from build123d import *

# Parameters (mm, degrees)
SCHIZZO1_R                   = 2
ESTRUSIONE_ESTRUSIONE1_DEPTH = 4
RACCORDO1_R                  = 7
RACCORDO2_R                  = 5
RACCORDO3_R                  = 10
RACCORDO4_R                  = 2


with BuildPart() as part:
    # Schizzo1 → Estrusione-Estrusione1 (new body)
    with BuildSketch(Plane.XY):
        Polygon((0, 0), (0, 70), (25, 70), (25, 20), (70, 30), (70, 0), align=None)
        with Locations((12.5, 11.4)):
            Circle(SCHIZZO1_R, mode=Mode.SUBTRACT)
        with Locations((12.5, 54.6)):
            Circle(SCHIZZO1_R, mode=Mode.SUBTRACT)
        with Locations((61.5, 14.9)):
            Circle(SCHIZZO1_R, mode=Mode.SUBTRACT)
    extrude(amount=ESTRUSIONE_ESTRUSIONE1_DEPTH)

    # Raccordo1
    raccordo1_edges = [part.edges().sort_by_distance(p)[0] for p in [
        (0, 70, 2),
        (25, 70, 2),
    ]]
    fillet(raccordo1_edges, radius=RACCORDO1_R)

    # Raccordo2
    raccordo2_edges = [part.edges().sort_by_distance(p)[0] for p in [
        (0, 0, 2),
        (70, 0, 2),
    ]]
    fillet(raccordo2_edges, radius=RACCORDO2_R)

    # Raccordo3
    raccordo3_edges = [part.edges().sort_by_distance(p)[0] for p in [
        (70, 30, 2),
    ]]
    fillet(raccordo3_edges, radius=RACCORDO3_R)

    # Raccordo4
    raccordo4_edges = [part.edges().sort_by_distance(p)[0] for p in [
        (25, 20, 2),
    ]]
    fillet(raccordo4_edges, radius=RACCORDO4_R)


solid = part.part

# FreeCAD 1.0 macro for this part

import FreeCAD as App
import Part
import Sketcher


def edges_at(feature, points):
    """Names of the edges that pass closest to the given points."""
    edges = feature.Shape.Edges
    near = lambda p: min(range(len(edges)), key=lambda i: edges[i].distToShape(Part.Vertex(*p))[0])
    return sorted({f"Edge{near(p) + 1}" for p in points})


def add_polygon(sketch, points):
    """Adds a closed chain of lines whose ends are joined by coincident constraints."""
    first, n = sketch.GeometryCount, len(points)
    for a, b in zip(points, points[1:] + points[:1]):
        sketch.addGeometry(Part.LineSegment(App.Vector(*a, 0), App.Vector(*b, 0)), False)
    for i in range(n):
        sketch.addConstraint(Sketcher.Constraint("Coincident", first + i, 2, first + (i + 1) % n, 1))

doc = App.newDocument("Part")
params = doc.addObject("Spreadsheet::Sheet", "Params")
for row, (alias, value) in enumerate([
    ("sketch1_diameter", "4 mm"),
    ("sketch1_width", "70 mm"),
    ("sketch1_width2", "25 mm"),
    ("sketch1_height", "30 mm"),
    ("sketch1_height2", "50 mm"),
    ("pad1_length", "4 mm"),
    ("fillet_radius", "7 mm"),
    ("fillet2_radius", "5 mm"),
    ("fillet3_radius", "10 mm"),
    ("fillet4_radius", "2 mm"),
], start=1):
    params.set(f"A{row}", alias)
    params.set(f"B{row}", "=" + value)
    params.setAlias(f"B{row}", alias)

body = doc.addObject("PartDesign::Body", "Body")

# Sketch on XY plane
sketch1 = body.newObject("Sketcher::SketchObject", "Sketch")
sketch1.AttachmentSupport = (doc.getObject("XY_Plane"), [""])
sketch1.MapMode = "FlatFace"
add_polygon(sketch1, [(0, 70), (0, 0), (70, 0), (70, 30), (25, 20), (25, 70)])  # lines 0-5
sketch1.addGeometry(Part.Circle(App.Vector(61.5, 14.9, 0), App.Vector(0, 0, 1), 2), False)  # 6
sketch1.addGeometry(Part.Circle(App.Vector(12.5, 11.4, 0), App.Vector(0, 0, 1), 2), False)  # 7
sketch1.addGeometry(Part.Circle(App.Vector(12.5, 54.6, 0), App.Vector(0, 0, 1), 2), False)  # 8
sketch1.addConstraint(Sketcher.Constraint("Vertical", 0))
sketch1.addConstraint(Sketcher.Constraint("Horizontal", 1))
sketch1.addConstraint(Sketcher.Constraint("Vertical", 2))
sketch1.addConstraint(Sketcher.Constraint("Vertical", 4))
sketch1.addConstraint(Sketcher.Constraint("Horizontal", 5))
sketch1.addConstraint(Sketcher.Constraint("Coincident", 0, 2, -1, 1))
sketch1.addConstraint(Sketcher.Constraint("Equal", 6, 7))
sketch1.addConstraint(Sketcher.Constraint("Equal", 7, 8))
sketch1.addConstraint(Sketcher.Constraint("Vertical", 7, 3, 8, 3))
sketch1.addConstraint(Sketcher.Constraint("Equal", 1, 0))
sketch1.addConstraint(Sketcher.Constraint("Diameter", 6, 4.0))
sketch1.addConstraint(Sketcher.Constraint("DistanceX", 1, 1, 1, 2, 70.0))
sketch1.addConstraint(Sketcher.Constraint("DistanceX", 5, 2, 5, 1, 25.0))
sketch1.addConstraint(Sketcher.Constraint("DistanceY", 2, 1, 2, 2, 30.0))
sketch1.addConstraint(Sketcher.Constraint("DistanceY", 4, 1, 4, 2, 50.0))
sketch1.addConstraint(Sketcher.Constraint("DistanceX", 7, 3, 6, 3, 49.0))
sketch1.addConstraint(Sketcher.Constraint("DistanceX", -1, 1, 6, 3, 61.5))
sketch1.addConstraint(Sketcher.Constraint("DistanceY", -1, 1, 6, 3, 14.9))
sketch1.addConstraint(Sketcher.Constraint("DistanceY", -1, 1, 7, 3, 11.4))
sketch1.addConstraint(Sketcher.Constraint("DistanceY", -1, 1, 8, 3, 54.6))
sketch1.setExpression("Constraints[16]", "Params.sketch1_diameter")
sketch1.setExpression("Constraints[17]", "Params.sketch1_width")
sketch1.setExpression("Constraints[18]", "Params.sketch1_width2")
sketch1.setExpression("Constraints[19]", "Params.sketch1_height")
sketch1.setExpression("Constraints[20]", "Params.sketch1_height2")
pad1 = body.newObject("PartDesign::Pad", "Pad")
pad1.Profile = sketch1
pad1.setExpression("Length", "Params.pad1_length")
doc.recompute()

fillet = body.newObject("PartDesign::Fillet", "Fillet")
fillet.Base = (pad1, edges_at(pad1, [(0, 70, 2), (25, 70, 2)]))
fillet.setExpression("Radius", "Params.fillet_radius")
doc.recompute()

fillet2 = body.newObject("PartDesign::Fillet", "Fillet001")
fillet2.Base = (fillet, edges_at(fillet, [(0, 0, 2), (70, 0, 2)]))
fillet2.setExpression("Radius", "Params.fillet2_radius")
doc.recompute()

fillet3 = body.newObject("PartDesign::Fillet", "Fillet002")
fillet3.Base = (fillet2, edges_at(fillet2, [(70, 30, 2)]))
fillet3.setExpression("Radius", "Params.fillet3_radius")
doc.recompute()

fillet4 = body.newObject("PartDesign::Fillet", "Fillet003")
fillet4.Base = (fillet3, edges_at(fillet3, [(25, 20, 2)]))
fillet4.setExpression("Radius", "Params.fillet4_radius")

doc.recompute()
